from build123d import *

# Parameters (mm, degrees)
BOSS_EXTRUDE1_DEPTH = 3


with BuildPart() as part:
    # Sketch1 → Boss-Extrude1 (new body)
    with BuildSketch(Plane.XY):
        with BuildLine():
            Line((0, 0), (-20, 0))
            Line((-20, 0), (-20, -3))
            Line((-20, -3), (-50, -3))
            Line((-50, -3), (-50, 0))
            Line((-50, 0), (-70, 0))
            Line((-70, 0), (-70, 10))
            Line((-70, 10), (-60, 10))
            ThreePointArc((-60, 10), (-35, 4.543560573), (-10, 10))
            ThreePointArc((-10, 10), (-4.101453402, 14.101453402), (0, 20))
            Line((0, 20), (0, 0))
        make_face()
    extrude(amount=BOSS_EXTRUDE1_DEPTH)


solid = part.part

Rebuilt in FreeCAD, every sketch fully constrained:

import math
import FreeCAD as App
import Part
import Sketcher

doc = App.newDocument("Part")
body = doc.addObject("PartDesign::Body", "Body")

# Sketch on XY plane
sketch1 = doc.addObject("Sketcher::SketchObject", "Sketch")
body.addObject(sketch1)
sketch1.AttachmentSupport = (doc.XY_Plane, [""])
sketch1.MapMode = "FlatFace"
sketch1.addGeometry([
    Part.LineSegment(App.Vector(-20, 0, 0), App.Vector(0, 0, 0)),  # 0
    Part.LineSegment(App.Vector(0, 0, 0), App.Vector(0, 20, 0)),  # 1
    Part.ArcOfCircle(Part.Circle(App.Vector(-18.462081, 28.462081, 0), App.Vector(0, 0, 1), 20.308994), math.radians(-65.375682), math.radians(-24.624318)),  # 2
    Part.ArcOfCircle(Part.Circle(App.Vector(-35, 64.543561, 0), App.Vector(0, 0, 1), 60), math.radians(-114.624318), math.radians(-65.375682)),  # 3
    Part.LineSegment(App.Vector(-60, 10, 0), App.Vector(-70, 10, 0)),  # 4
    Part.LineSegment(App.Vector(-70, 10, 0), App.Vector(-70, 0, 0)),  # 5
    Part.LineSegment(App.Vector(-70, 0, 0), App.Vector(-50, 0, 0)),  # 6
    Part.LineSegment(App.Vector(-50, 0, 0), App.Vector(-50, -3, 0)),  # 7
    Part.LineSegment(App.Vector(-50, -3, 0), App.Vector(-20, -3, 0)),  # 8
    Part.LineSegment(App.Vector(-20, -3, 0), App.Vector(-20, 0, 0)),  # 9
], False)
sketch1.addConstraint([
    Sketcher.Constraint("Coincident", 0, 2, 1, 1),
    Sketcher.Constraint("Coincident", 1, 2, 2, 2),
    Sketcher.Constraint("Tangent", 2, 1, 3, 2),
    Sketcher.Constraint("Coincident", 3, 1, 4, 1),
    Sketcher.Constraint("Coincident", 4, 2, 5, 1),
    Sketcher.Constraint("Coincident", 5, 2, 6, 1),
    Sketcher.Constraint("Coincident", 6, 2, 7, 1),
    Sketcher.Constraint("Coincident", 7, 2, 8, 1),
    Sketcher.Constraint("Coincident", 8, 2, 9, 1),
    Sketcher.Constraint("Coincident", 9, 2, 0, 1),
    Sketcher.Constraint("Horizontal", 0),
    Sketcher.Constraint("Vertical", 1),
    Sketcher.Constraint("Horizontal", 4),
    Sketcher.Constraint("Vertical", 5),
    Sketcher.Constraint("Horizontal", 6),
    Sketcher.Constraint("Vertical", 7),
    Sketcher.Constraint("Horizontal", 8),
    Sketcher.Constraint("Vertical", 9),
    Sketcher.Constraint("Coincident", 0, 2, -1, 1),
    Sketcher.Constraint("PointOnObject", 5, 2, -1),
    Sketcher.Constraint("Horizontal", 2, 1, 3, 1),
    Sketcher.Constraint("Equal", 0, 6),
    Sketcher.Constraint("Equal", 6, 1),
    Sketcher.Constraint("Equal", 4, 5),
    Sketcher.Constraint("Radius", 3, 60.0),
    Sketcher.Constraint("DistanceX", 0, 1, 0, 2, 20.0),
    Sketcher.Constraint("DistanceX", 4, 2, 4, 1, 10.0),
    Sketcher.Constraint("DistanceX", 8, 1, 8, 2, 30.0),
    Sketcher.Constraint("DistanceY", 7, 2, 7, 1, 3.0),
    Sketcher.Constraint("DistanceX", 3, 3, -1, 1, 35.0),
])
pad1 = doc.addObject("PartDesign::Pad", "Pad")
body.addObject(pad1)
pad1.Profile = sketch1
pad1.Length = 3

doc.recompute()
